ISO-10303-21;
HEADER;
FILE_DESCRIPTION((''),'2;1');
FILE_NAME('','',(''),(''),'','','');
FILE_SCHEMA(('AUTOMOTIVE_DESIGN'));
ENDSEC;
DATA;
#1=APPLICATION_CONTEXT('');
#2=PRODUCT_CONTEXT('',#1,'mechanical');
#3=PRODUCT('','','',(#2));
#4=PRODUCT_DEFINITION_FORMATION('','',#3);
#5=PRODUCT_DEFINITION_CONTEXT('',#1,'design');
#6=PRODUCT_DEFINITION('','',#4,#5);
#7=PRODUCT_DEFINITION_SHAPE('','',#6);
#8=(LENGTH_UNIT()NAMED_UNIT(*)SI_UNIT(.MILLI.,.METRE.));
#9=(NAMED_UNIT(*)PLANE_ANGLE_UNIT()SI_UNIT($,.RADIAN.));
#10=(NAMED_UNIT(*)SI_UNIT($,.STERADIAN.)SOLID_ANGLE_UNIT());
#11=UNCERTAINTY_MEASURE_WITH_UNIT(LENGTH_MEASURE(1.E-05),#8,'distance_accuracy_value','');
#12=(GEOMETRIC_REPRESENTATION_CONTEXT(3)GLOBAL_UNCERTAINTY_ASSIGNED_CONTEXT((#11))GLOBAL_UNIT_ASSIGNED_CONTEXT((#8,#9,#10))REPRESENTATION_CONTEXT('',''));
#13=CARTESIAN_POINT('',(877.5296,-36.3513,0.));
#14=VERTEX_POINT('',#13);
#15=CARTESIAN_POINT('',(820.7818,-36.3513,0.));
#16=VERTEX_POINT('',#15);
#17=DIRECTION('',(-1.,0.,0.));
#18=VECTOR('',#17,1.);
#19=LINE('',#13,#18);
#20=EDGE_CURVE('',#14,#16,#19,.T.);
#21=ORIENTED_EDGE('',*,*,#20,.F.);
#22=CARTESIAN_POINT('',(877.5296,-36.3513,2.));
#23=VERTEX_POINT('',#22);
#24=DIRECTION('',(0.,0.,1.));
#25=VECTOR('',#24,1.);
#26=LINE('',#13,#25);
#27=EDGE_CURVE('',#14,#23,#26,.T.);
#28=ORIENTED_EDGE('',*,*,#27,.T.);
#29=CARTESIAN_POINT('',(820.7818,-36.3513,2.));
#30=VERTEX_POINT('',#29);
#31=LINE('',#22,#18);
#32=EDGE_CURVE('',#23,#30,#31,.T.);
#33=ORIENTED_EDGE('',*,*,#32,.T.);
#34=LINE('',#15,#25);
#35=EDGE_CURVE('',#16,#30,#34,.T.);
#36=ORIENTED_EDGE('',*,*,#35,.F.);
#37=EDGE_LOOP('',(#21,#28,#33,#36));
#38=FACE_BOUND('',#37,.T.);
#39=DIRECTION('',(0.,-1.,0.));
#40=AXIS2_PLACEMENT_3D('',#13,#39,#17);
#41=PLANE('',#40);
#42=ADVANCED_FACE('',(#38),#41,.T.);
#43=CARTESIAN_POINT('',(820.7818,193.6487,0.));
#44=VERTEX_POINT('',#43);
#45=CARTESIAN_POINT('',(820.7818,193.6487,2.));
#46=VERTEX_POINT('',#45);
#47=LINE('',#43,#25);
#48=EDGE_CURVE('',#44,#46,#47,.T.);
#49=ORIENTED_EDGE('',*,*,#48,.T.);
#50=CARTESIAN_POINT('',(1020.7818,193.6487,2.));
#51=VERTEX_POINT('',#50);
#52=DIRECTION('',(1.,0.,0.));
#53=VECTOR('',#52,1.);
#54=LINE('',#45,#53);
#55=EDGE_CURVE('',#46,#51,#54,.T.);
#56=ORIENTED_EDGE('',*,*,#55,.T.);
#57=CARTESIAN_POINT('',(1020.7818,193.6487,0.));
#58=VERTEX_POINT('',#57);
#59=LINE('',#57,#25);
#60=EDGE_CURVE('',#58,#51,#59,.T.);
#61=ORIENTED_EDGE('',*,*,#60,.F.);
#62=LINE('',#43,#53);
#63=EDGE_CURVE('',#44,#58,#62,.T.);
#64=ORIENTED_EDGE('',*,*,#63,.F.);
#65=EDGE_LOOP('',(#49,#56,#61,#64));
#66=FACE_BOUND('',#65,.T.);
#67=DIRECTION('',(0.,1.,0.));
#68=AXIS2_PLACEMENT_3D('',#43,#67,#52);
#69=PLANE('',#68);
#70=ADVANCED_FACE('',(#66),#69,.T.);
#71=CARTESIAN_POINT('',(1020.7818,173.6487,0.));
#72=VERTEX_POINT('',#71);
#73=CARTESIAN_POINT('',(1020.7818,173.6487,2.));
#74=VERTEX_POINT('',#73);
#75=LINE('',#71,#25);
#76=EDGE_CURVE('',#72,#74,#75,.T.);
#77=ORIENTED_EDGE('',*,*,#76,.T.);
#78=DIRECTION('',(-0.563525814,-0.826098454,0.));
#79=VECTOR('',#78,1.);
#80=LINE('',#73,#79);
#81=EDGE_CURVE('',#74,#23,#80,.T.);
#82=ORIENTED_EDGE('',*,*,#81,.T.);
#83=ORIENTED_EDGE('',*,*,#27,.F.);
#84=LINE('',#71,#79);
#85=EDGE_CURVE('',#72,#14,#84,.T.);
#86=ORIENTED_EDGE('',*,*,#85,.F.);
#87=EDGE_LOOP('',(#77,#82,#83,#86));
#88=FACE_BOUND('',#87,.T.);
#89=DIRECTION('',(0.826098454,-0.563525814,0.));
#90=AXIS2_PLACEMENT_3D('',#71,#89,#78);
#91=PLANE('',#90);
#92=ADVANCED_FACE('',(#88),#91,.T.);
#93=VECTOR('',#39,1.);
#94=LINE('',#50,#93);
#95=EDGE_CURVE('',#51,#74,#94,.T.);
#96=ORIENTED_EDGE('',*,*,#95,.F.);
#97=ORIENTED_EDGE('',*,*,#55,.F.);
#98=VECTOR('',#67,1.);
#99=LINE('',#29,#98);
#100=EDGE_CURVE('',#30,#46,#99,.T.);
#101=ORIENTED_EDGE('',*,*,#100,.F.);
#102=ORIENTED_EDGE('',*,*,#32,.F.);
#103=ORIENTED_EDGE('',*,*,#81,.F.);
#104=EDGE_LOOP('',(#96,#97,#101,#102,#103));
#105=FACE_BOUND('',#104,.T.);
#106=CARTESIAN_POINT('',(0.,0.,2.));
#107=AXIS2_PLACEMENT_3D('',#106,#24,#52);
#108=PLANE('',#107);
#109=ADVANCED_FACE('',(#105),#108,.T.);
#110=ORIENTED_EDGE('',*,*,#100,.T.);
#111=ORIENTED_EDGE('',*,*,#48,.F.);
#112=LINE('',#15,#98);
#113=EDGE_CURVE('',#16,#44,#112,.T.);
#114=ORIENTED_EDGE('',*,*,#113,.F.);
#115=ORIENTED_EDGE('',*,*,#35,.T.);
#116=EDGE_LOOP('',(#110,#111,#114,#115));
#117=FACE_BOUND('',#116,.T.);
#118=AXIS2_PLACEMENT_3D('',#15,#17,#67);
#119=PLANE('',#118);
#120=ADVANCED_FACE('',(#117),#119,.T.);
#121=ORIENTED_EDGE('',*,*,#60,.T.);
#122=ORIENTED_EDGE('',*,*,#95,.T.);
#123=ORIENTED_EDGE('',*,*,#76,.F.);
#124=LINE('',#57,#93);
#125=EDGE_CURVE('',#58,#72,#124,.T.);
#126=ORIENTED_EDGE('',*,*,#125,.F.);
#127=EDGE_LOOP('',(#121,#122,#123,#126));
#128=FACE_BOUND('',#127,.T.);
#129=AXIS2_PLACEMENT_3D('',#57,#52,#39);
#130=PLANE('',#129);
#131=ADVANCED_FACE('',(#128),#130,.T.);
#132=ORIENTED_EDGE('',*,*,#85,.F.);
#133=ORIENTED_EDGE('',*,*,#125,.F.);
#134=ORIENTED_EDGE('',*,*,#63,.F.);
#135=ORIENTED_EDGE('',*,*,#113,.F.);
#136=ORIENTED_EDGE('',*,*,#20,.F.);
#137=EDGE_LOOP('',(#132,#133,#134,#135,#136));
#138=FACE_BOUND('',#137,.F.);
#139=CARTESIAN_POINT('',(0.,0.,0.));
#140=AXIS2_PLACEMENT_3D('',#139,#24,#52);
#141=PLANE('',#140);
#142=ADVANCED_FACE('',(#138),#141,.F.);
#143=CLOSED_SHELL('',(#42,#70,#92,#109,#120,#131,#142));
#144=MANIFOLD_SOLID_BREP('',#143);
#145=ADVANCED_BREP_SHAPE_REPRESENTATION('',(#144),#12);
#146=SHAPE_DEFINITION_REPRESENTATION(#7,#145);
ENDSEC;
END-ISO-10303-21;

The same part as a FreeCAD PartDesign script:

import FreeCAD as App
import Part
import Sketcher
from FreeCAD import Vector
Q = App.Units.Quantity

doc = App.newDocument("Part")
body = doc.addObject("PartDesign::Body", "Body")

# Sketch on XY plane
sketch1 = doc.addObject("Sketcher::SketchObject", "Sketch")
body.addObject(sketch1)
sketch1.AttachmentSupport = (doc.XY_Plane, [""])
sketch1.MapMode = "FlatFace"
sketch1.addGeometry([
    Part.LineSegment(Vector(1021, 194, 0), Vector(821, 194, 0)),  # 0
    Part.LineSegment(Vector(821, 194, 0), Vector(821, -36, 0)),  # 1
    Part.LineSegment(Vector(821, -36, 0), Vector(878, -36, 0)),  # 2
    Part.LineSegment(Vector(878, -36, 0), Vector(1021, 174, 0)),  # 3
    Part.LineSegment(Vector(1021, 174, 0), Vector(1021, 194, 0)),  # 4
], False)
sketch1.addConstraint([
    Sketcher.Constraint("Coincident", 0, 2, 1, 1),
    Sketcher.Constraint("Coincident", 1, 2, 2, 1),
    Sketcher.Constraint("Coincident", 2, 2, 3, 1),
    Sketcher.Constraint("Coincident", 3, 2, 4, 1),
    Sketcher.Constraint("Coincident", 4, 2, 0, 1),
    Sketcher.Constraint("Horizontal", 0),
    Sketcher.Constraint("Vertical", 1),
    Sketcher.Constraint("Horizontal", 2),
    Sketcher.Constraint("Vertical", 4),
    Sketcher.Constraint("DistanceX", 0, 2, 0, 1, Q("200 mm")),
    Sketcher.Constraint("DistanceY", 1, 2, 1, 1, Q("230 mm")),
    Sketcher.Constraint("DistanceY", 4, 1, 4, 2, Q("20 mm")),
    Sketcher.Constraint("Angle", 3, Q("55.7 deg")),
    Sketcher.Constraint("DistanceX", -1, 1, 0, 2, Q("820.7818 mm")),
    Sketcher.Constraint("DistanceY", -1, 1, 0, 2, Q("193.6487 mm")),
])
pad1 = doc.addObject("PartDesign::Pad", "Pad")
body.addObject(pad1)
pad1.Profile = sketch1
pad1.Length = 2

doc.recompute()
